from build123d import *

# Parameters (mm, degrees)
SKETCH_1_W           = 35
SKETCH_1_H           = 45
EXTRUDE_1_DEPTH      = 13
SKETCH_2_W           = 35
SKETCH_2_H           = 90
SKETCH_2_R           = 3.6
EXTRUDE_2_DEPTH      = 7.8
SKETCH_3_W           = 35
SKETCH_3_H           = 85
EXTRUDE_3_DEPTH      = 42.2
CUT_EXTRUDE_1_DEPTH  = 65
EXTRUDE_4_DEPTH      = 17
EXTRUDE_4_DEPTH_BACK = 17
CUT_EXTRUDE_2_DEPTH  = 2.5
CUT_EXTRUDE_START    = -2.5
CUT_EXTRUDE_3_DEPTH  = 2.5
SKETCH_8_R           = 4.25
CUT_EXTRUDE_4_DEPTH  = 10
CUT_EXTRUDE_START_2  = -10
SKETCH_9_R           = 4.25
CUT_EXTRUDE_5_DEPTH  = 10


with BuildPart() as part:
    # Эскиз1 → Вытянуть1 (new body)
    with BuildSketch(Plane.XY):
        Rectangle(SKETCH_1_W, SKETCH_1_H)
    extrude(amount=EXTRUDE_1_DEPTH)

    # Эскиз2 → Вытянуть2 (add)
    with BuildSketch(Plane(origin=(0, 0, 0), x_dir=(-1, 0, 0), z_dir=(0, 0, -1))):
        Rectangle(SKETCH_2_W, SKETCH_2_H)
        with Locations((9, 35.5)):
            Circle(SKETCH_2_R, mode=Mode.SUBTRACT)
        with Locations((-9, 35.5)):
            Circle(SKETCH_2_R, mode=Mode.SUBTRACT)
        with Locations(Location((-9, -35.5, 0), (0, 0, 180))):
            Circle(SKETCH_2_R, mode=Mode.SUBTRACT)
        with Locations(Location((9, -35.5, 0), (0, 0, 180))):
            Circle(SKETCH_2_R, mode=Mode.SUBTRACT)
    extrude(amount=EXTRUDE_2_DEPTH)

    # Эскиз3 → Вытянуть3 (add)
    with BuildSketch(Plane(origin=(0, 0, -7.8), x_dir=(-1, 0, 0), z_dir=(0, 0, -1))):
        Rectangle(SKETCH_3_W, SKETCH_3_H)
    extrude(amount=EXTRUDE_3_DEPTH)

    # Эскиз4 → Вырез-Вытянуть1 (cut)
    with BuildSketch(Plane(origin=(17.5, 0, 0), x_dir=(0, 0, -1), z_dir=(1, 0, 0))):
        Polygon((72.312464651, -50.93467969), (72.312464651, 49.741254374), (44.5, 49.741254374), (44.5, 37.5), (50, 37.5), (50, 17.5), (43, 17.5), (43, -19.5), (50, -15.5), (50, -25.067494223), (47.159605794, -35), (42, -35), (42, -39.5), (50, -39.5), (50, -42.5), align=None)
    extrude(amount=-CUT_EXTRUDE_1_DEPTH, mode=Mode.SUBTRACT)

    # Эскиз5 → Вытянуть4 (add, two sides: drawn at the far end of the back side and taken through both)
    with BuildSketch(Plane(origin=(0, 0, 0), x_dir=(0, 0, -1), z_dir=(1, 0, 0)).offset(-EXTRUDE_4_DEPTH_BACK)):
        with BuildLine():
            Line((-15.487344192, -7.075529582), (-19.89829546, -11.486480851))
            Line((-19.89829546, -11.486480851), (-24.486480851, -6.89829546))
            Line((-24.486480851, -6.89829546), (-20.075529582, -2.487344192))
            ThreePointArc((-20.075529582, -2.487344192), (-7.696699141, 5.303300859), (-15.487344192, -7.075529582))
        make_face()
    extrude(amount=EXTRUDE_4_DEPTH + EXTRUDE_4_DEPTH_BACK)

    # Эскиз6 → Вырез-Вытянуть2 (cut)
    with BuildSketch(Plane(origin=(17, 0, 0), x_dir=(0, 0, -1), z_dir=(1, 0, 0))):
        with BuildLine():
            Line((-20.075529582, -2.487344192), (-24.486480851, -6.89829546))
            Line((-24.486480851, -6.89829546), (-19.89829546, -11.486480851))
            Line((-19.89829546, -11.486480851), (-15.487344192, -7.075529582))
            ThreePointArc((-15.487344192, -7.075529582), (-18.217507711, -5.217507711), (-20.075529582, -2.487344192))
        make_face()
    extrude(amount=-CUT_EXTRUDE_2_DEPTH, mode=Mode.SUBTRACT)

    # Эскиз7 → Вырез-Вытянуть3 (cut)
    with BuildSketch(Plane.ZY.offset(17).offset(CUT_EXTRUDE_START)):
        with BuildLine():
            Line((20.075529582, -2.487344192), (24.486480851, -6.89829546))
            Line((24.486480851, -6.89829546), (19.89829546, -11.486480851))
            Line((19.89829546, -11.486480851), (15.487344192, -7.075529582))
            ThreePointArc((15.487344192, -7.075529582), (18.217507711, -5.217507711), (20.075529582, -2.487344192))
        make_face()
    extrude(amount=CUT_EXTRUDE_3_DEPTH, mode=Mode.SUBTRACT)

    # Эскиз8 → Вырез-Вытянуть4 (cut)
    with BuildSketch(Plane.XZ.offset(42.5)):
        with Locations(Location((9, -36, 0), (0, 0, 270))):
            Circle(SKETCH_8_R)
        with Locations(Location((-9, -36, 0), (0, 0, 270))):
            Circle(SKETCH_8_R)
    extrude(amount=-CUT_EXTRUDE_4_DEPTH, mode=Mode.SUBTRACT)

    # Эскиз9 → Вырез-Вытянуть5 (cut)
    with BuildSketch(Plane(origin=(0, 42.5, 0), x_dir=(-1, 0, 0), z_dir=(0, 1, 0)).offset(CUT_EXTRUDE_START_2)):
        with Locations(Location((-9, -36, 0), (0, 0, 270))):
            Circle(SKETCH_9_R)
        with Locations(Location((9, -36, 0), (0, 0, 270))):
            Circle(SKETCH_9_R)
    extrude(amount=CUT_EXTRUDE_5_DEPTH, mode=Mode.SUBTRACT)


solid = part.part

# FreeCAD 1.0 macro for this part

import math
import FreeCAD as App
import Part
import Sketcher

V = App.Vector
Q = App.Units.Quantity


def add_polygon(sketch, points):
    """Adds a closed chain of lines whose ends are joined by coincident constraints."""
    first, n = sketch.GeometryCount, len(points)
    for a, b in zip(points, points[1:] + points[:1]):
        sketch.addGeometry(Part.LineSegment(App.Vector(*a, 0), App.Vector(*b, 0)), False)
    for i in range(n):
        sketch.addConstraint(Sketcher.Constraint("Coincident", first + i, 2, first + (i + 1) % n, 1))

doc = App.newDocument("Part")
body = doc.addObject("PartDesign::Body", "Body")

sketch1 = body.newObject("Sketcher::SketchObject", "Sketch")
sketch1.AttachmentSupport = (doc.getObject("XY_Plane"), [""])
sketch1.MapMode = "FlatFace"
add_polygon(sketch1, [(-18, 22), (-18, -22), (18, -22), (18, 22)])
sketch1.addConstraint([
    Sketcher.Constraint("Vertical", 0),
    Sketcher.Constraint("Horizontal", 1),
    Sketcher.Constraint("Vertical", 2),
    Sketcher.Constraint("Horizontal", 3),
    Sketcher.Constraint("Symmetric", 0, 2, 2, 2, -1, 1),
    Sketcher.Constraint("DistanceX", 1, 1, 1, 2, Q("35 mm")),
    Sketcher.Constraint("DistanceY", 0, 2, 0, 1, Q("45 mm")),
])
pad1 = body.newObject("PartDesign::Pad", "Pad")
pad1.Profile = sketch1
pad1.Length = 13

sketch2 = body.newObject("Sketcher::SketchObject", "Sketch001")
sketch2.AttachmentSupport = (doc.getObject("XY_Plane"), [""])
sketch2.MapMode = "FlatFace"
add_polygon(sketch2, [(17.5, 45), (17.5, -45), (-17.5, -45), (-17.5, 45)])
sketch2.addGeometry(Part.Circle(V(9, -35.5, 0), V(0, 0, 1), 3.6), False)
sketch2.addGeometry(Part.Circle(V(-9, -35.5, 0), V(0, 0, 1), 3.6), False)
sketch2.addGeometry(Part.Circle(V(9, 35.5, 0), V(0, 0, 1), 3.6), False)
sketch2.addGeometry(Part.Circle(V(-9, 35.5, 0), V(0, 0, 1), 3.6), False)
sketch2.addConstraint([
    Sketcher.Constraint("Vertical", 0),
    Sketcher.Constraint("Horizontal", 1),
    Sketcher.Constraint("Vertical", 2),
    Sketcher.Constraint("Horizontal", 3),
    Sketcher.Constraint("Equal", 4, 5),
    Sketcher.Constraint("Equal", 5, 6),
    Sketcher.Constraint("Equal", 6, 7),
    Sketcher.Constraint("Symmetric", 5, 3, 6, 3, -1, 1),
    Sketcher.Constraint("Symmetric", 4, 3, 7, 3, -1, 1),
    Sketcher.Constraint("Symmetric", 0, 2, 2, 2, -1, 1),
    Sketcher.Constraint("Symmetric", 4, 3, 5, 3, -2),
    Sketcher.Constraint("Diameter", 4, Q("7.2 mm")),
    Sketcher.Constraint("DistanceX", 1, 2, 1, 1, Q("35 mm")),
    Sketcher.Constraint("DistanceY", 0, 2, 0, 1, Q("90 mm")),
    Sketcher.Constraint("DistanceX", -1, 1, 4, 3, Q("9 mm")),
    Sketcher.Constraint("DistanceY", 4, 3, 6, 3, Q("71 mm")),
])
pad2 = body.newObject("PartDesign::Pad", "Pad001")
pad2.Profile = sketch2
pad2.Length = 7.8
pad2.Reversed = True

sketch3 = body.newObject("Sketcher::SketchObject", "Sketch002")
sketch3.AttachmentSupport = (doc.getObject("XY_Plane"), [""])
sketch3.MapMode = "FlatFace"
sketch3.AttachmentOffset = App.Placement(V(0, 0, -7.8), App.Rotation())
add_polygon(sketch3, [(18, 42), (18, -42), (-18, -42), (-18, 42)])
sketch3.addConstraint([
    Sketcher.Constraint("Vertical", 0),
    Sketcher.Constraint("Horizontal", 1),
    Sketcher.Constraint("Vertical", 2),
    Sketcher.Constraint("Horizontal", 3),
    Sketcher.Constraint("Symmetric", 0, 2, 2, 2, -1, 1),
    Sketcher.Constraint("DistanceX", 1, 2, 1, 1, Q("35 mm")),
    Sketcher.Constraint("DistanceY", 0, 2, 0, 1, Q("85 mm")),
])
pad3 = body.newObject("PartDesign::Pad", "Pad002")
pad3.Profile = sketch3
pad3.Length = 42.2
pad3.Reversed = True

sketch4 = body.newObject("Sketcher::SketchObject", "Sketch003")
sketch4.AttachmentSupport = (doc.getObject("YZ_Plane"), [""])
sketch4.MapMode = "FlatFace"
sketch4.AttachmentOffset = App.Placement(V(0, 0, 17.5), App.Rotation())
add_polygon(sketch4, [(-50.9, -72.3), (49.7, -72.3), (49.7, -44.5), (37.5, -44.5), (37.5, -50), (17.5, -50), (17.5, -43), (-19.5, -43), (-15.5, -50), (-25.1, -50), (-35, -47.2), (-35, -42), (-39.5, -42), (-39.5, -50), (-42.5, -50)])
sketch4.addConstraint([
    Sketcher.Constraint("Horizontal", 0),
    Sketcher.Constraint("Vertical", 1),
    Sketcher.Constraint("Horizontal", 2),
    Sketcher.Constraint("Vertical", 3),
    Sketcher.Constraint("Horizontal", 4),
    Sketcher.Constraint("Vertical", 5),
    Sketcher.Constraint("Horizontal", 6),
    Sketcher.Constraint("Horizontal", 8),
    Sketcher.Constraint("Vertical", 10),
    Sketcher.Constraint("Horizontal", 11),
    Sketcher.Constraint("Vertical", 12),
    Sketcher.Constraint("Horizontal", 13),
    Sketcher.Constraint("Horizontal", 4, 2, 7, 2),
    Sketcher.Constraint("Horizontal", 8, 2, 12, 2),
    Sketcher.Constraint("DistanceX", 4, 2, 4, 1, Q("20 mm")),
    Sketcher.Constraint("DistanceX", 6, 2, 6, 1, Q("37 mm")),
    Sketcher.Constraint("DistanceX", 13, 2, 13, 1, Q("3 mm")),
    Sketcher.Constraint("DistanceY", 5, 1, 5, 2, Q("7 mm")),
    Sketcher.Constraint("DistanceY", 12, 2, 12, 1, Q("8 mm")),
    Sketcher.Constraint("DistanceX", 11, 2, 11, 1, Q("4.5 mm")),
    Sketcher.Constraint("DistanceY", 3, 2, 3, 1, Q("5.5 mm")),
    Sketcher.Constraint("DistanceY", 3, 2, -1, 1, Q("50 mm")),
    Sketcher.Constraint("DistanceX", 9, 2, -1, 1, Q("35 mm")),
    Sketcher.Constraint("DistanceX", 6, 2, 7, 2, Q("4 mm")),
    Sketcher.Constraint("DistanceX", 11, 2, 6, 2, Q("20 mm")),
    Sketcher.Constraint("Distance", 9, Q("10.330659 mm")),
    Sketcher.Constraint("Distance", 14, Q("23.853509 mm")),
    Sketcher.Constraint("DistanceX", 0, 1, 0, 2, Q("100.675934 mm")),
    Sketcher.Constraint("DistanceX", 2, 2, 2, 1, Q("12.241254 mm")),
    Sketcher.Constraint("DistanceX", 8, 2, 8, 1, Q("9.567494 mm")),
])
pocket1 = body.newObject("PartDesign::Pocket", "Pocket")
pocket1.Profile = sketch4
pocket1.Length = 65

sketch5 = body.newObject("Sketcher::SketchObject", "Sketch004")
sketch5.AttachmentSupport = (doc.getObject("YZ_Plane"), [""])
sketch5.MapMode = "FlatFace"
sketch5.addGeometry([
    Part.LineSegment(V(-11, 20, 0), V(-7, 15, 0)),
    Part.ArcOfCircle(Part.Circle(V(0, 13, 0), V(0, 0, 1), 8), math.radians(161), math.radians(469)),
    Part.LineSegment(V(-2, 20, 0), V(-7, 24, 0)),
    Part.LineSegment(V(-7, 24, 0), V(-11, 20, 0)),
], False)
sketch5.addConstraint([
    Sketcher.Constraint("Coincident", 0, 2, 1, 1),
    Sketcher.Constraint("Coincident", 1, 2, 2, 1),
    Sketcher.Constraint("Coincident", 2, 2, 3, 1),
    Sketcher.Constraint("Coincident", 3, 2, 0, 1),
    Sketcher.Constraint("PointOnObject", 1, 3, -2),
    Sketcher.Constraint("Parallel", 0, 2),
    Sketcher.Constraint("Perpendicular", 2, 3),
    Sketcher.Constraint("Equal", 0, 2),
    Sketcher.Constraint("Radius", 1, Q("7.5 mm")),
    Sketcher.Constraint("Angle", 0, Q("-45 deg")),
    Sketcher.Constraint("DistanceY", -1, 1, 1, 3, Q("13 mm")),
    Sketcher.Constraint("DistanceX", 0, 2, -1, 1, Q("7.07553 mm")),
    Sketcher.Constraint("DistanceY", -1, 1, 2, 2, Q("24.486481 mm")),
])
pad4 = body.newObject("PartDesign::Pad", "Pad003")
pad4.Profile = sketch5
pad4.Type = "TwoLengths"
pad4.Length = 17
pad4.Length2 = 17

sketch6 = body.newObject("Sketcher::SketchObject", "Sketch005")
sketch6.AttachmentSupport = (doc.getObject("YZ_Plane"), [""])
sketch6.MapMode = "FlatFace"
sketch6.AttachmentOffset = App.Placement(V(0, 0, 17), App.Rotation())
sketch6.addGeometry([
    Part.LineSegment(V(-2, 20, 0), V(-7, 24, 0)),
    Part.LineSegment(V(-7, 24, 0), V(-11, 20, 0)),
    Part.LineSegment(V(-11, 20, 0), V(-7, 15, 0)),
    Part.ArcOfCircle(Part.Circle(V(1, 12, 0), V(0, 0, 1), 9), math.radians(113), math.radians(157)),
], False)
sketch6.addConstraint([
    Sketcher.Constraint("Coincident", 0, 2, 1, 1),
    Sketcher.Constraint("Coincident", 1, 2, 2, 1),
    Sketcher.Constraint("Coincident", 2, 2, 3, 2),
    Sketcher.Constraint("Coincident", 3, 1, 0, 1),
    Sketcher.Constraint("Perpendicular", 0, 1),
    Sketcher.Constraint("Perpendicular", 1, 2),
    Sketcher.Constraint("Equal", 0, 2),
    Sketcher.Constraint("Angle", 0, Q("135 deg")),
    Sketcher.Constraint("Radius", 3, Q("8.842295 mm")),
    Sketcher.Constraint("DistanceX", -1, 1, 3, 3, Q("1.034939 mm")),
    Sketcher.Constraint("DistanceY", -1, 1, 3, 3, Q("11.965061 mm")),
    Sketcher.Constraint("DistanceY", -1, 1, 0, 2, Q("24.486481 mm")),
    Sketcher.Constraint("DistanceX", 2, 2, -1, 1, Q("7.07553 mm")),
])
pocket2 = body.newObject("PartDesign::Pocket", "Pocket001")
pocket2.Profile = sketch6
pocket2.Length = 2.5

sketch7 = body.newObject("Sketcher::SketchObject", "Sketch006")
sketch7.AttachmentSupport = (doc.getObject("YZ_Plane"), [""])
sketch7.MapMode = "FlatFace"
sketch7.AttachmentOffset = App.Placement(V(0, 0, -14.5), App.Rotation())
sketch7.addGeometry([
    Part.LineSegment(V(-7, 24, 0), V(-2, 20, 0)),
    Part.ArcOfCircle(Part.Circle(V(1, 12, 0), V(0, 0, 1), 9), math.radians(113), math.radians(157)),
    Part.LineSegment(V(-7, 15, 0), V(-11, 20, 0)),
    Part.LineSegment(V(-11, 20, 0), V(-7, 24, 0)),
], False)
sketch7.addConstraint([
    Sketcher.Constraint("Coincident", 0, 2, 1, 1),
    Sketcher.Constraint("Coincident", 1, 2, 2, 1),
    Sketcher.Constraint("Coincident", 2, 2, 3, 1),
    Sketcher.Constraint("Coincident", 3, 2, 0, 1),
    Sketcher.Constraint("Parallel", 0, 2),
    Sketcher.Constraint("Perpendicular", 2, 3),
    Sketcher.Constraint("Equal", 0, 2),
    Sketcher.Constraint("Angle", 0, Q("-45 deg")),
    Sketcher.Constraint("Radius", 1, Q("8.842295 mm")),
    Sketcher.Constraint("DistanceX", -1, 1, 1, 3, Q("1.034939 mm")),
    Sketcher.Constraint("DistanceY", -1, 1, 1, 3, Q("11.965061 mm")),
    Sketcher.Constraint("DistanceY", -1, 1, 0, 2, Q("20.07553 mm")),
    Sketcher.Constraint("DistanceX", 2, 2, -1, 1, Q("11.486481 mm")),
])
pocket3 = body.newObject("PartDesign::Pocket", "Pocket002")
pocket3.Profile = sketch7
pocket3.Length = 2.5

sketch8 = body.newObject("Sketcher::SketchObject", "Sketch007")
sketch8.AttachmentSupport = (doc.getObject("XZ_Plane"), [""])
sketch8.MapMode = "FlatFace"
sketch8.AttachmentOffset = App.Placement(V(0, 0, 42.5), App.Rotation())
sketch8.addGeometry([
    Part.Circle(V(9, -36, 0), V(0, 0, 1), 4.2),
    Part.Circle(V(-9, -36, 0), V(0, 0, 1), 4.2),
], False)
sketch8.addConstraint([
    Sketcher.Constraint("Equal", 0, 1),
    Sketcher.Constraint("Symmetric", 0, 3, 1, 3, -2),
    Sketcher.Constraint("Diameter", 0, Q("8.5 mm")),
    Sketcher.Constraint("DistanceX", -1, 1, 0, 3, Q("9 mm")),
    Sketcher.Constraint("DistanceY", 0, 3, -1, 1, Q("36 mm")),
])
pocket4 = body.newObject("PartDesign::Pocket", "Pocket003")
pocket4.Profile = sketch8
pocket4.Length = 10

sketch9 = body.newObject("Sketcher::SketchObject", "Sketch008")
sketch9.AttachmentSupport = (doc.getObject("XZ_Plane"), [""])
sketch9.MapMode = "FlatFace"
sketch9.AttachmentOffset = App.Placement(V(0, 0, -32.5), App.Rotation())
sketch9.addGeometry([
    Part.Circle(V(9, -36, 0), V(0, 0, 1), 4.2),
    Part.Circle(V(-9, -36, 0), V(0, 0, 1), 4.2),
], False)
sketch9.addConstraint([
    Sketcher.Constraint("Equal", 0, 1),
    Sketcher.Constraint("Symmetric", 0, 3, 1, 3, -2),
    Sketcher.Constraint("Diameter", 0, Q("8.5 mm")),
    Sketcher.Constraint("DistanceX", -1, 1, 0, 3, Q("9 mm")),
    Sketcher.Constraint("DistanceY", 0, 3, -1, 1, Q("36 mm")),
])
pocket5 = body.newObject("PartDesign::Pocket", "Pocket004")
pocket5.Profile = sketch9
pocket5.Length = 10

doc.recompute()
